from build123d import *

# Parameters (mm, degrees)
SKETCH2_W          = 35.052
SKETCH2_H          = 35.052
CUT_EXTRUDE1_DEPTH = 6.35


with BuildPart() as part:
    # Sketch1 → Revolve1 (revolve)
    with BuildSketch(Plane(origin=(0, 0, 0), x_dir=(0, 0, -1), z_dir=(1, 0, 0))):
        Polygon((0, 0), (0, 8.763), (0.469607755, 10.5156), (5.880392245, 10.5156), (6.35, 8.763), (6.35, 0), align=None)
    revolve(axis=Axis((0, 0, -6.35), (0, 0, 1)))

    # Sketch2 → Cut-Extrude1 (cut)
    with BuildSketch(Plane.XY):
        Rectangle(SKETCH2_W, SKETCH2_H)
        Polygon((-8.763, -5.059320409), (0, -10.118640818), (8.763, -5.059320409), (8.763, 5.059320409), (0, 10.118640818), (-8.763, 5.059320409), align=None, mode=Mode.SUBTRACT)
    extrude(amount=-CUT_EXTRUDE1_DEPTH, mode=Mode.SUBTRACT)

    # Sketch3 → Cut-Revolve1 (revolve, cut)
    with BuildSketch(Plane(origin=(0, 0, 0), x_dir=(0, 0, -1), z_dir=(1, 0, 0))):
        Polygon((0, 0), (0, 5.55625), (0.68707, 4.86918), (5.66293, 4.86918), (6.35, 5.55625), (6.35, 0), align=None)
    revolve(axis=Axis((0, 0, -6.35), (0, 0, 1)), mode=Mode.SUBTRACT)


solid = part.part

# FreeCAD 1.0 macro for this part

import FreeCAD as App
import Part
import Sketcher

V = App.Vector
Q = App.Units.Quantity

doc = App.newDocument("Part")
body = doc.addObject("PartDesign::Body", "Body")

sketch1 = doc.addObject("Sketcher::SketchObject", "Sketch")
body.addObject(sketch1)
sketch1.AttachmentSupport = (doc.YZ_Plane, [""])
sketch1.MapMode = "FlatFace"
sketch1.addGeometry(Part.LineSegment(V(8.8, 0, 0), V(0, 0, 0)), False)
sketch1.addGeometry(Part.LineSegment(V(0, 0, 0), V(0, -6.3, 0)), False)
sketch1.addGeometry(Part.LineSegment(V(0, -6.3, 0), V(8.8, -6.3, 0)), False)
sketch1.addGeometry(Part.LineSegment(V(8.8, -6.3, 0), V(10.5, -5.9, 0)), False)
sketch1.addGeometry(Part.LineSegment(V(10.5, -5.9, 0), V(10.5, -0.5, 0)), False)
sketch1.addGeometry(Part.LineSegment(V(10.5, -0.5, 0), V(8.8, 0, 0)), False)
sketch1.addConstraint(Sketcher.Constraint("Coincident", 0, 2, 1, 1))
sketch1.addConstraint(Sketcher.Constraint("Coincident", 1, 2, 2, 1))
sketch1.addConstraint(Sketcher.Constraint("Coincident", 2, 2, 3, 1))
sketch1.addConstraint(Sketcher.Constraint("Coincident", 3, 2, 4, 1))
sketch1.addConstraint(Sketcher.Constraint("Coincident", 4, 2, 5, 1))
sketch1.addConstraint(Sketcher.Constraint("Coincident", 5, 2, 0, 1))
sketch1.addConstraint(Sketcher.Constraint("Horizontal", 0))
sketch1.addConstraint(Sketcher.Constraint("Vertical", 1))
sketch1.addConstraint(Sketcher.Constraint("Horizontal", 2))
sketch1.addConstraint(Sketcher.Constraint("Vertical", 4))
sketch1.addConstraint(Sketcher.Constraint("Coincident", 0, 2, -1, 1))
sketch1.addConstraint(Sketcher.Constraint("Vertical", 2, 2, 5, 2))
sketch1.addConstraint(Sketcher.Constraint("Equal", 3, 5))
sketch1.addConstraint(Sketcher.Constraint("Angle", 3, Q("15 deg")))
sketch1.addConstraint(Sketcher.Constraint("DistanceY", 1, 2, 1, 1, Q("0.25 in")))
sketch1.addConstraint(Sketcher.Constraint("DistanceX", 0, 2, 0, 1, Q("0.345 in")))
sketch1.addConstraint(Sketcher.Constraint("DistanceX", -1, 1, 3, 2, Q("0.414 in")))
revolution = doc.addObject("PartDesign::Revolution", "Revolution")
body.addObject(revolution)
revolution.Profile = sketch1
revolution.ReferenceAxis = (sketch1, ["V_Axis"])
revolution.Angle = 360

sketch2 = doc.addObject("Sketcher::SketchObject", "Sketch001")
body.addObject(sketch2)
sketch2.AttachmentSupport = (doc.XY_Plane, [""])
sketch2.MapMode = "FlatFace"
sketch2.addGeometry(Part.LineSegment(V(-18, 18, 0), V(-18, -18, 0)), False)
sketch2.addGeometry(Part.LineSegment(V(-18, -18, 0), V(18, -18, 0)), False)
sketch2.addGeometry(Part.LineSegment(V(18, -18, 0), V(18, 18, 0)), False)
sketch2.addGeometry(Part.LineSegment(V(18, 18, 0), V(-18, 18, 0)), False)
sketch2.addGeometry(Part.LineSegment(V(0, -10, 0), V(-9, -5, 0)), False)
sketch2.addGeometry(Part.LineSegment(V(-9, -5, 0), V(-9, 5, 0)), False)
sketch2.addGeometry(Part.LineSegment(V(-9, 5, 0), V(0, 10, 0)), False)
sketch2.addGeometry(Part.LineSegment(V(0, 10, 0), V(9, 5, 0)), False)
sketch2.addGeometry(Part.LineSegment(V(9, 5, 0), V(9, -5, 0)), False)
sketch2.addGeometry(Part.LineSegment(V(9, -5, 0), V(0, -10, 0)), False)
sketch2.addConstraint(Sketcher.Constraint("Coincident", 0, 2, 1, 1))
sketch2.addConstraint(Sketcher.Constraint("Coincident", 1, 2, 2, 1))
sketch2.addConstraint(Sketcher.Constraint("Coincident", 2, 2, 3, 1))
sketch2.addConstraint(Sketcher.Constraint("Coincident", 3, 2, 0, 1))
sketch2.addConstraint(Sketcher.Constraint("Coincident", 4, 2, 5, 1))
sketch2.addConstraint(Sketcher.Constraint("Coincident", 5, 2, 6, 1))
sketch2.addConstraint(Sketcher.Constraint("Coincident", 6, 2, 7, 1))
sketch2.addConstraint(Sketcher.Constraint("Coincident", 7, 2, 8, 1))
sketch2.addConstraint(Sketcher.Constraint("Coincident", 8, 2, 9, 1))
sketch2.addConstraint(Sketcher.Constraint("Coincident", 9, 2, 4, 1))
sketch2.addConstraint(Sketcher.Constraint("Vertical", 0))
sketch2.addConstraint(Sketcher.Constraint("Horizontal", 1))
sketch2.addConstraint(Sketcher.Constraint("Vertical", 2))
sketch2.addConstraint(Sketcher.Constraint("Horizontal", 3))
sketch2.addConstraint(Sketcher.Constraint("Vertical", 5))
sketch2.addConstraint(Sketcher.Constraint("Vertical", 8))
sketch2.addConstraint(Sketcher.Constraint("Symmetric", 0, 2, 2, 2, -1, 1))
sketch2.addConstraint(Sketcher.Constraint("Symmetric", 4, 2, 7, 2, -1, 1))
sketch2.addConstraint(Sketcher.Constraint("Symmetric", 6, 2, 9, 2, -1, 1))
sketch2.addConstraint(Sketcher.Constraint("PointOnObject", 6, 2, -2))
sketch2.addConstraint(Sketcher.Constraint("Parallel", 6, 9))
sketch2.addConstraint(Sketcher.Constraint("Horizontal", 5, 2, 7, 2))
sketch2.addConstraint(Sketcher.Constraint("Equal", 3, 0))
sketch2.addConstraint(Sketcher.Constraint("Angle", 4, Q("150 deg")))
sketch2.addConstraint(Sketcher.Constraint("DistanceX", 1, 1, 1, 2, Q("1.38 in")))
sketch2.addConstraint(Sketcher.Constraint("DistanceX", 5, 2, 7, 2, Q("0.69 in")))
sketch2.addConstraint(Sketcher.Constraint("DistanceY", 5, 1, 5, 2, Q("10.118641 mm")))
pocket1 = doc.addObject("PartDesign::Pocket", "Pocket")
body.addObject(pocket1)
pocket1.Profile = sketch2
pocket1.Length = Q("0.25 in")

sketch3 = doc.addObject("Sketcher::SketchObject", "Sketch002")
body.addObject(sketch3)
sketch3.AttachmentSupport = (doc.YZ_Plane, [""])
sketch3.MapMode = "FlatFace"
sketch3.addGeometry(Part.LineSegment(V(5.6, 0, 0), V(0, 0, 0)), False)
sketch3.addGeometry(Part.LineSegment(V(0, 0, 0), V(0, -6.3, 0)), False)
sketch3.addGeometry(Part.LineSegment(V(0, -6.3, 0), V(5.6, -6.3, 0)), False)
sketch3.addGeometry(Part.LineSegment(V(5.6, -6.3, 0), V(4.9, -5.7, 0)), False)
sketch3.addGeometry(Part.LineSegment(V(4.9, -5.7, 0), V(4.9, -0.7, 0)), False)
sketch3.addGeometry(Part.LineSegment(V(4.9, -0.7, 0), V(5.6, 0, 0)), False)
sketch3.addConstraint(Sketcher.Constraint("Coincident", 0, 2, 1, 1))
sketch3.addConstraint(Sketcher.Constraint("Coincident", 1, 2, 2, 1))
sketch3.addConstraint(Sketcher.Constraint("Coincident", 2, 2, 3, 1))
sketch3.addConstraint(Sketcher.Constraint("Coincident", 3, 2, 4, 1))
sketch3.addConstraint(Sketcher.Constraint("Coincident", 4, 2, 5, 1))
sketch3.addConstraint(Sketcher.Constraint("Coincident", 5, 2, 0, 1))
sketch3.addConstraint(Sketcher.Constraint("Horizontal", 0))
sketch3.addConstraint(Sketcher.Constraint("Vertical", 1))
sketch3.addConstraint(Sketcher.Constraint("Horizontal", 2))
sketch3.addConstraint(Sketcher.Constraint("Vertical", 4))
sketch3.addConstraint(Sketcher.Constraint("Coincident", 0, 2, -1, 1))
sketch3.addConstraint(Sketcher.Constraint("Perpendicular", 3, 5))
sketch3.addConstraint(Sketcher.Constraint("Vertical", 2, 2, 5, 2))
sketch3.addConstraint(Sketcher.Constraint("Equal", 3, 5))
sketch3.addConstraint(Sketcher.Constraint("DistanceY", 1, 2, 1, 1, Q("0.25 in")))
sketch3.addConstraint(Sketcher.Constraint("DistanceX", 0, 2, 0, 1, Q("0.21875 in")))
sketch3.addConstraint(Sketcher.Constraint("DistanceY", 4, 1, 4, 2, Q("0.1959 in")))
groove = doc.addObject("PartDesign::Groove", "Groove")
body.addObject(groove)
groove.Profile = sketch3
groove.ReferenceAxis = (sketch3, ["V_Axis"])
groove.Angle = 360

doc.recompute()
